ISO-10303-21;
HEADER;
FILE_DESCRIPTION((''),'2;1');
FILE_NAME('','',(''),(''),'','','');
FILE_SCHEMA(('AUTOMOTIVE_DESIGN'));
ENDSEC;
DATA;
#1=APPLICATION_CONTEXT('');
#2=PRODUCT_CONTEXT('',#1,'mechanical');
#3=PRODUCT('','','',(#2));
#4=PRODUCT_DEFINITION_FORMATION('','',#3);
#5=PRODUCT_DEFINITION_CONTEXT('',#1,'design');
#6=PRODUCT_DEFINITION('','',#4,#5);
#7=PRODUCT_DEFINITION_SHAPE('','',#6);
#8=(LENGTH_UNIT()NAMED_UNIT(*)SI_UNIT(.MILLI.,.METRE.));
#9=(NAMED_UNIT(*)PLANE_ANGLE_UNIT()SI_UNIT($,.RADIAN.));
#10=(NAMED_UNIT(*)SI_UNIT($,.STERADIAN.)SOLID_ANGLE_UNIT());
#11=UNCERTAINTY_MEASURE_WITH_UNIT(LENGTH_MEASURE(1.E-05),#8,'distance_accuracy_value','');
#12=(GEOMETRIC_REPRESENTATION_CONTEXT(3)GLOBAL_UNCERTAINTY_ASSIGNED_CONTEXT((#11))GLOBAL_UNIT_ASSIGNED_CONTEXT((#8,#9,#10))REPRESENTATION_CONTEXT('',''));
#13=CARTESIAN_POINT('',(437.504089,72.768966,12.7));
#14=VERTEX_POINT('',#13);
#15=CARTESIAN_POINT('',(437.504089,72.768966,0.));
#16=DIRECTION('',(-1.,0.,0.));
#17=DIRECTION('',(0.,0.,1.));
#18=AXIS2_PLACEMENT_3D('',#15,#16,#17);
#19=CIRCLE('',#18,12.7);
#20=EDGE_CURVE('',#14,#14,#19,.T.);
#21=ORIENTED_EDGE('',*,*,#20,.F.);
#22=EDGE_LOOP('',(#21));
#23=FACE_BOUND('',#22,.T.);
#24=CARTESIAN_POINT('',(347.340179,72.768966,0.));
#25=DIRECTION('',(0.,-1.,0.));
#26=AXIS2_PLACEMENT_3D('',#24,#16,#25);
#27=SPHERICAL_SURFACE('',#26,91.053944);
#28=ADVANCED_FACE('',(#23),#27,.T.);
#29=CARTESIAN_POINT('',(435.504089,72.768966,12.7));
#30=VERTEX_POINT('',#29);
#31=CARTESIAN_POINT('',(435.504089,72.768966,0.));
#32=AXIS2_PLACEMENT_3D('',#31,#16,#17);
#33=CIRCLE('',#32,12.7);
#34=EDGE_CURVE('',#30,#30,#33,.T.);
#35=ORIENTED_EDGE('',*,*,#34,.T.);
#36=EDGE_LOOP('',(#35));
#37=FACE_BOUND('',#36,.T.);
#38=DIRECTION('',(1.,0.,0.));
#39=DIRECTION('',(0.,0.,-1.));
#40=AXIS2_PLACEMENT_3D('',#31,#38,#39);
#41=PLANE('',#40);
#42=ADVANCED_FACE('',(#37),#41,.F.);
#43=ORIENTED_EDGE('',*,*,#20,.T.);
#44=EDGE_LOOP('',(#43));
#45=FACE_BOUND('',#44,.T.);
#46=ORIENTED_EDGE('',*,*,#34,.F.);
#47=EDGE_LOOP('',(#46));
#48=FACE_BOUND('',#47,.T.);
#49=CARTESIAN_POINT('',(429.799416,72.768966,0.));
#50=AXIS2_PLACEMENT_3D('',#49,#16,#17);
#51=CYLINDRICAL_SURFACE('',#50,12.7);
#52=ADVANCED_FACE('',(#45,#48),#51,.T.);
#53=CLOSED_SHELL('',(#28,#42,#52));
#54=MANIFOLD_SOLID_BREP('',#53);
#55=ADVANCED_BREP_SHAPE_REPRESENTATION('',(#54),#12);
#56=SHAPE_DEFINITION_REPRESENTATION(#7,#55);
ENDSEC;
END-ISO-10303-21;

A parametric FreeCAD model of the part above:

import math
import FreeCAD as App
import Part
import Sketcher

V = App.Vector
Q = App.Units.Quantity

doc = App.newDocument("Part")
body = doc.addObject("PartDesign::Body", "Body")

# Sketch on XY plane
sketch1 = body.newObject("Sketcher::SketchObject", "Sketch")
sketch1.AttachmentSupport = (doc.getObject("XY_Plane"), [""])
sketch1.MapMode = "FlatFace"
sketch1.addGeometry([
    Part.LineSegment(V(435.5, 85.5, 0), V(435.5, 72.8, 0)),
    Part.LineSegment(V(435.5, 72.8, 0), V(438.4, 72.8, 0)),
    Part.ArcOfCircle(Part.Circle(V(347.3, 72.8, 0), V(0, 0, 1), 91.1), math.radians(0), math.radians(8.02)),
    Part.LineSegment(V(437.5, 85.5, 0), V(435.5, 85.5, 0)),
], False)
sketch1.addGeometry(Part.LineSegment(V(347.3, 72.8, 0), V(438.4, 72.8, 0)), True)  # axis
sketch1.addConstraint([
    Sketcher.Constraint("Coincident", 0, 2, 1, 1),
    Sketcher.Constraint("Coincident", 1, 2, 2, 1),
    Sketcher.Constraint("Coincident", 2, 2, 3, 1),
    Sketcher.Constraint("Coincident", 3, 2, 0, 1),
    Sketcher.Constraint("Vertical", 0),
    Sketcher.Constraint("Horizontal", 1),
    Sketcher.Constraint("Horizontal", 3),
    Sketcher.Constraint("Horizontal", 4),
    Sketcher.Constraint("Coincident", 4, 1, 2, 3),
    Sketcher.Constraint("Coincident", 4, 2, 1, 2),
    Sketcher.Constraint("DistanceX", 3, 2, 3, 1, Q("2 mm")),
    Sketcher.Constraint("DistanceY", 0, 2, 0, 1, Q("12.7 mm")),
    Sketcher.Constraint("Radius", 2, Q("91.053944 mm")),
    Sketcher.Constraint("DistanceX", -1, 1, 2, 3, Q("347.340179 mm")),
    Sketcher.Constraint("DistanceY", -1, 1, 2, 3, Q("72.768966 mm")),
])
revolution = body.newObject("PartDesign::Revolution", "Revolution")
revolution.Profile = sketch1
revolution.ReferenceAxis = (sketch1, ["Axis0"])
revolution.Angle = 360

doc.recompute()
